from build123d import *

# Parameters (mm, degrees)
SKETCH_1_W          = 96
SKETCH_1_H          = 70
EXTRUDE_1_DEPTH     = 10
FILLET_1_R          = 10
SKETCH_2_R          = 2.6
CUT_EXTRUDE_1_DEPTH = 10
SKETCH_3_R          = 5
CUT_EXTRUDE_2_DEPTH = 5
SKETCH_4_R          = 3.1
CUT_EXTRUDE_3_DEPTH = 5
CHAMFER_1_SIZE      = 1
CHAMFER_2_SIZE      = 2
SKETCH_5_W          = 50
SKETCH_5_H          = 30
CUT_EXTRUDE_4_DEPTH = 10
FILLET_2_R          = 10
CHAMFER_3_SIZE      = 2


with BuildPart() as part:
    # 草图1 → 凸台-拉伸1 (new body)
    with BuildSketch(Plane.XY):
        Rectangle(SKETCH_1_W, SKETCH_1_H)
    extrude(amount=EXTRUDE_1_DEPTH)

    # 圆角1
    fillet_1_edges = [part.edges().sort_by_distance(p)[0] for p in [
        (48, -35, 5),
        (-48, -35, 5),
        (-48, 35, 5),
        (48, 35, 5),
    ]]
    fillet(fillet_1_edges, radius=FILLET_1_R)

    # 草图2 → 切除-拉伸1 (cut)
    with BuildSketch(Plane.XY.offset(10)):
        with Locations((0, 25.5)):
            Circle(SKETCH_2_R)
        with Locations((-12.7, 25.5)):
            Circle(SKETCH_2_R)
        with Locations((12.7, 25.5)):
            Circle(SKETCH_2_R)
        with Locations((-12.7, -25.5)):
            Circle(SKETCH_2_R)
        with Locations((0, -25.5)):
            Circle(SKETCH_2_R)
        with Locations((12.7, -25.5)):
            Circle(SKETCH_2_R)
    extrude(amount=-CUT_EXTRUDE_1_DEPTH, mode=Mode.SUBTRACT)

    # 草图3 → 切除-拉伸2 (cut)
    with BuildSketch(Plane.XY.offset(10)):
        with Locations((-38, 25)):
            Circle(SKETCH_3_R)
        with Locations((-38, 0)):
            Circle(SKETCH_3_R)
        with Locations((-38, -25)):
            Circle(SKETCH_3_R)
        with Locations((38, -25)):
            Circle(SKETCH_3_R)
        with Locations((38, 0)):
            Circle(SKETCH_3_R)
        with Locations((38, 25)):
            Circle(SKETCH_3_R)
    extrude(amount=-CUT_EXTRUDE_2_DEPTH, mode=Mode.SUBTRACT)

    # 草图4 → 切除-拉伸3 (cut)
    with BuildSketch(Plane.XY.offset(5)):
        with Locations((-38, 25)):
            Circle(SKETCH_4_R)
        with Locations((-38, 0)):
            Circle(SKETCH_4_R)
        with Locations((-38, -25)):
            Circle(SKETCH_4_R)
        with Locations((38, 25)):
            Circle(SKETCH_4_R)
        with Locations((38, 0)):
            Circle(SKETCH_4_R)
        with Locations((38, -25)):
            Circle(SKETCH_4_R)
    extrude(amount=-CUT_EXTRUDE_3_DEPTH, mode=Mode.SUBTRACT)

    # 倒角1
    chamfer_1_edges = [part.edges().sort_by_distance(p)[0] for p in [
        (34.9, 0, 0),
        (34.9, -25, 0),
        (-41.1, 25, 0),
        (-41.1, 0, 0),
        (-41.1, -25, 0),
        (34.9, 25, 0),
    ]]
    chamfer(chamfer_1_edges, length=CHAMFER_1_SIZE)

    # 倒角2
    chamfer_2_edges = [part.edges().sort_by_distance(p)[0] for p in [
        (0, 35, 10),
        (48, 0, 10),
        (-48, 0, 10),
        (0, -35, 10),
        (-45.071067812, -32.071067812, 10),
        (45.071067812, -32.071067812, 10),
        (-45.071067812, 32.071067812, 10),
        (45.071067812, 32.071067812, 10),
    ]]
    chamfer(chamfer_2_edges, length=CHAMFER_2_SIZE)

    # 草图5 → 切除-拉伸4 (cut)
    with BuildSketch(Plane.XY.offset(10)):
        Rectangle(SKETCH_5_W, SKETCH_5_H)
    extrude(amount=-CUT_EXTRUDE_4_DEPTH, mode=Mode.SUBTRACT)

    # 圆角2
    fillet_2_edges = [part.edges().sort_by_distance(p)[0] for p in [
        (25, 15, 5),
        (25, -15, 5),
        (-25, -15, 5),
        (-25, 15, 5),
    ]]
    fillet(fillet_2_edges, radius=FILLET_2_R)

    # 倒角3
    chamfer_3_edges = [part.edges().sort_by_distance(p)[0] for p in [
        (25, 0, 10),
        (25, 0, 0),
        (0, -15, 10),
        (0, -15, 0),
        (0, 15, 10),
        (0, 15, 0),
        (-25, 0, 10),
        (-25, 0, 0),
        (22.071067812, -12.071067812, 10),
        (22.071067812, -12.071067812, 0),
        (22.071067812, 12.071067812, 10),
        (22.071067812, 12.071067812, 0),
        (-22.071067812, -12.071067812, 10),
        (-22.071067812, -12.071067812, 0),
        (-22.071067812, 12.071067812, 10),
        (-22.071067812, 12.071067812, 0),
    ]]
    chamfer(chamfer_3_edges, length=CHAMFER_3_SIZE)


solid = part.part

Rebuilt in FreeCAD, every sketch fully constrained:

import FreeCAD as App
import Part
import Sketcher
from FreeCAD import Vector
Q = App.Units.Quantity


def edges_at(feature, points):
    """Names of the edges that pass closest to the given points."""
    edges = feature.Shape.Edges
    near = lambda p: min(range(len(edges)), key=lambda i: edges[i].distToShape(Part.Vertex(*p))[0])
    return sorted({f"Edge{near(p) + 1}" for p in points})

doc = App.newDocument("Part")
params = doc.addObject("Spreadsheet::Sheet", "Params")
for row, (alias, value) in enumerate([
    ("sketch1_width", "96 mm"),
    ("sketch1_height", "70 mm"),
    ("pad1_length", "10 mm"),
    ("fillet_radius", "10 mm"),
    ("sketch2_diameter", "5.2 mm"),
    ("pocket1_length", "10 mm"),
    ("sketch3_diameter", "10 mm"),
    ("pocket2_length", "5 mm"),
    ("sketch4_diameter", "6.2 mm"),
    ("pocket3_length", "5 mm"),
    ("chamfer_size", "1 mm"),
    ("chamfer2_size", "2 mm"),
    ("sketch5_width", "50 mm"),
    ("sketch5_height", "30 mm"),
    ("pocket4_length", "10 mm"),
    ("fillet2_radius", "10 mm"),
    ("chamfer3_size", "2 mm"),
], start=1):
    params.set(f"A{row}", alias)
    params.set(f"B{row}", "=" + value)
    params.setAlias(f"B{row}", alias)

body = doc.addObject("PartDesign::Body", "Body")

# Sketch on XY plane
sketch1 = body.newObject("Sketcher::SketchObject", "Sketch")
sketch1.AttachmentSupport = (doc.getObject("XY_Plane"), [""])
sketch1.MapMode = "FlatFace"
sketch1.addGeometry([
    Part.LineSegment(Vector(-48, 35, 0), Vector(-48, -35, 0)),
    Part.LineSegment(Vector(-48, -35, 0), Vector(48, -35, 0)),
    Part.LineSegment(Vector(48, -35, 0), Vector(48, 35, 0)),
    Part.LineSegment(Vector(48, 35, 0), Vector(-48, 35, 0)),
], False)
sketch1.addConstraint([
    Sketcher.Constraint("Coincident", 0, 2, 1, 1),
    Sketcher.Constraint("Coincident", 1, 2, 2, 1),
    Sketcher.Constraint("Coincident", 2, 2, 3, 1),
    Sketcher.Constraint("Coincident", 3, 2, 0, 1),
    Sketcher.Constraint("Vertical", 0),
    Sketcher.Constraint("Horizontal", 1),
    Sketcher.Constraint("Vertical", 2),
    Sketcher.Constraint("Horizontal", 3),
    Sketcher.Constraint("Symmetric", 0, 2, 2, 2, -1, 1),
    Sketcher.Constraint("DistanceX", 1, 1, 1, 2, Q("96 mm")),
    Sketcher.Constraint("DistanceY", 0, 2, 0, 1, Q("70 mm")),
])
sketch1.setExpression("Constraints[9]", "Params.sketch1_width")
sketch1.setExpression("Constraints[10]", "Params.sketch1_height")
pad1 = body.newObject("PartDesign::Pad", "Pad")
pad1.Profile = sketch1
pad1.setExpression("Length", "Params.pad1_length")
doc.recompute()

fillet = body.newObject("PartDesign::Fillet", "Fillet")
fillet.Base = (pad1, edges_at(pad1, [
    (48, -35, 5),
    (-48, -35, 5),
    (-48, 35, 5),
    (48, 35, 5),
]))
fillet.setExpression("Radius", "Params.fillet_radius")

# Sketch on XY plane
sketch2 = body.newObject("Sketcher::SketchObject", "Sketch001")
sketch2.AttachmentSupport = (doc.getObject("XY_Plane"), [""])
sketch2.MapMode = "FlatFace"
sketch2.AttachmentOffset = App.Placement(Vector(0, 0, 10), App.Rotation())
sketch2.addGeometry([
    Part.Circle(Vector(0, 25.5, 0), Vector(0, 0, 1), 2.6),  # 0
    Part.Circle(Vector(-12.7, 25.5, 0), Vector(0, 0, 1), 2.6),  # 1
    Part.Circle(Vector(12.7, 25.5, 0), Vector(0, 0, 1), 2.6),  # 2
    Part.Circle(Vector(-12.7, -25.5, 0), Vector(0, 0, 1), 2.6),  # 3
    Part.Circle(Vector(0, -25.5, 0), Vector(0, 0, 1), 2.6),  # 4
    Part.Circle(Vector(12.7, -25.5, 0), Vector(0, 0, 1), 2.6),  # 5
], False)
sketch2.addConstraint([
    Sketcher.Constraint("Equal", 0, 1),
    Sketcher.Constraint("Equal", 1, 2),
    Sketcher.Constraint("Equal", 2, 3),
    Sketcher.Constraint("Equal", 3, 4),
    Sketcher.Constraint("Equal", 4, 5),
    Sketcher.Constraint("Symmetric", 2, 3, 3, 3, -1, 1),
    Sketcher.Constraint("Symmetric", 0, 3, 4, 3, -1, 1),
    Sketcher.Constraint("Symmetric", 1, 3, 5, 3, -1, 1),
    Sketcher.Constraint("Symmetric", 1, 3, 2, 3, -2),
    Sketcher.Constraint("PointOnObject", 0, 3, -2),
    Sketcher.Constraint("Horizontal", 0, 3, 1, 3),
    Sketcher.Constraint("Diameter", 0, Q("5.2 mm")),
    Sketcher.Constraint("DistanceY", 3, 3, 1, 3, Q("51 mm")),
    Sketcher.Constraint("DistanceX", 1, 3, -1, 1, Q("12.7 mm")),
])
sketch2.setExpression("Constraints[11]", "Params.sketch2_diameter")
pocket1 = body.newObject("PartDesign::Pocket", "Pocket")
pocket1.Profile = sketch2
pocket1.setExpression("Length", "Params.pocket1_length")

# Sketch on XY plane
sketch3 = body.newObject("Sketcher::SketchObject", "Sketch002")
sketch3.AttachmentSupport = (doc.getObject("XY_Plane"), [""])
sketch3.MapMode = "FlatFace"
sketch3.AttachmentOffset = App.Placement(Vector(0, 0, 10), App.Rotation())
sketch3.addGeometry([
    Part.Circle(Vector(-38, 25, 0), Vector(0, 0, 1), 5),  # 0
    Part.Circle(Vector(-38, 0, 0), Vector(0, 0, 1), 5),  # 1
    Part.Circle(Vector(-38, -25, 0), Vector(0, 0, 1), 5),  # 2
    Part.Circle(Vector(38, -25, 0), Vector(0, 0, 1), 5),  # 3
    Part.Circle(Vector(38, 0, 0), Vector(0, 0, 1), 5),  # 4
    Part.Circle(Vector(38, 25, 0), Vector(0, 0, 1), 5),  # 5
], False)
sketch3.addConstraint([
    Sketcher.Constraint("Equal", 0, 1),
    Sketcher.Constraint("Equal", 1, 2),
    Sketcher.Constraint("Equal", 2, 3),
    Sketcher.Constraint("Equal", 3, 4),
    Sketcher.Constraint("Equal", 4, 5),
    Sketcher.Constraint("Symmetric", 0, 3, 3, 3, -1, 1),
    Sketcher.Constraint("Symmetric", 1, 3, 4, 3, -1, 1),
    Sketcher.Constraint("Symmetric", 2, 3, 5, 3, -1, 1),
    Sketcher.Constraint("Symmetric", 2, 3, 3, 3, -2),
    Sketcher.Constraint("PointOnObject", 1, 3, -1),
    Sketcher.Constraint("Vertical", 0, 3, 1, 3),
    Sketcher.Constraint("Diameter", 0, Q("10 mm")),
    Sketcher.Constraint("DistanceX", 0, 3, -1, 1, Q("38 mm")),
    Sketcher.Constraint("DistanceY", -1, 1, 0, 3, Q("25 mm")),
])
sketch3.setExpression("Constraints[11]", "Params.sketch3_diameter")
pocket2 = body.newObject("PartDesign::Pocket", "Pocket001")
pocket2.Profile = sketch3
pocket2.setExpression("Length", "Params.pocket2_length")

# Sketch on XY plane
sketch4 = body.newObject("Sketcher::SketchObject", "Sketch003")
sketch4.AttachmentSupport = (doc.getObject("XY_Plane"), [""])
sketch4.MapMode = "FlatFace"
sketch4.AttachmentOffset = App.Placement(Vector(0, 0, 5), App.Rotation())
sketch4.addGeometry([
    Part.Circle(Vector(-38, 25, 0), Vector(0, 0, 1), 3.1),  # 0
    Part.Circle(Vector(-38, 0, 0), Vector(0, 0, 1), 3.1),  # 1
    Part.Circle(Vector(-38, -25, 0), Vector(0, 0, 1), 3.1),  # 2
    Part.Circle(Vector(38, 25, 0), Vector(0, 0, 1), 3.1),  # 3
    Part.Circle(Vector(38, 0, 0), Vector(0, 0, 1), 3.1),  # 4
    Part.Circle(Vector(38, -25, 0), Vector(0, 0, 1), 3.1),  # 5
], False)
sketch4.addConstraint([
    Sketcher.Constraint("Equal", 0, 1),
    Sketcher.Constraint("Equal", 1, 2),
    Sketcher.Constraint("Equal", 2, 3),
    Sketcher.Constraint("Equal", 3, 4),
    Sketcher.Constraint("Equal", 4, 5),
    Sketcher.Constraint("Symmetric", 2, 3, 3, 3, -1, 1),
    Sketcher.Constraint("Symmetric", 1, 3, 4, 3, -1, 1),
    Sketcher.Constraint("Symmetric", 0, 3, 5, 3, -1, 1),
    Sketcher.Constraint("Symmetric", 0, 3, 3, 3, -2),
    Sketcher.Constraint("PointOnObject", 1, 3, -1),
    Sketcher.Constraint("Vertical", 0, 3, 1, 3),
    Sketcher.Constraint("Diameter", 0, Q("6.2 mm")),
    Sketcher.Constraint("DistanceX", 0, 3, -1, 1, Q("38 mm")),
    Sketcher.Constraint("DistanceY", -1, 1, 0, 3, Q("25 mm")),
])
sketch4.setExpression("Constraints[11]", "Params.sketch4_diameter")
pocket3 = body.newObject("PartDesign::Pocket", "Pocket002")
pocket3.Profile = sketch4
pocket3.setExpression("Length", "Params.pocket3_length")
doc.recompute()

chamfer = body.newObject("PartDesign::Chamfer", "Chamfer")
chamfer.Base = (pocket3, edges_at(pocket3, [
    (34.9, 0, 0),
    (34.9, -25, 0),
    (-41.1, 25, 0),
    (-41.1, 0, 0),
    (-41.1, -25, 0),
    (34.9, 25, 0),
]))
chamfer.setExpression("Size", "Params.chamfer_size")
doc.recompute()

chamfer2 = body.newObject("PartDesign::Chamfer", "Chamfer001")
chamfer2.Base = (chamfer, edges_at(chamfer, [
    (0, 35, 10),
    (48, 0, 10),
    (-48, 0, 10),
    (0, -35, 10),
    (-45.071, -32.071, 10),
    (45.071, -32.071, 10),
    (-45.071, 32.071, 10),
    (45.071, 32.071, 10),
]))
chamfer2.setExpression("Size", "Params.chamfer2_size")

# Sketch on XY plane
sketch5 = body.newObject("Sketcher::SketchObject", "Sketch004")
sketch5.AttachmentSupport = (doc.getObject("XY_Plane"), [""])
sketch5.MapMode = "FlatFace"
sketch5.AttachmentOffset = App.Placement(Vector(0, 0, 10), App.Rotation())
sketch5.addGeometry([
    Part.LineSegment(Vector(-25, 15, 0), Vector(-25, -15, 0)),
    Part.LineSegment(Vector(-25, -15, 0), Vector(25, -15, 0)),
    Part.LineSegment(Vector(25, -15, 0), Vector(25, 15, 0)),
    Part.LineSegment(Vector(25, 15, 0), Vector(-25, 15, 0)),
], False)
sketch5.addConstraint([
    Sketcher.Constraint("Coincident", 0, 2, 1, 1),
    Sketcher.Constraint("Coincident", 1, 2, 2, 1),
    Sketcher.Constraint("Coincident", 2, 2, 3, 1),
    Sketcher.Constraint("Coincident", 3, 2, 0, 1),
    Sketcher.Constraint("Vertical", 0),
    Sketcher.Constraint("Horizontal", 1),
    Sketcher.Constraint("Vertical", 2),
    Sketcher.Constraint("Horizontal", 3),
    Sketcher.Constraint("Symmetric", 0, 2, 2, 2, -1, 1),
    Sketcher.Constraint("DistanceX", 1, 1, 1, 2, Q("50 mm")),
    Sketcher.Constraint("DistanceY", 0, 2, 0, 1, Q("30 mm")),
])
sketch5.setExpression("Constraints[9]", "Params.sketch5_width")
sketch5.setExpression("Constraints[10]", "Params.sketch5_height")
pocket4 = body.newObject("PartDesign::Pocket", "Pocket003")
pocket4.Profile = sketch5
pocket4.setExpression("Length", "Params.pocket4_length")
doc.recompute()

fillet2 = body.newObject("PartDesign::Fillet", "Fillet001")
fillet2.Base = (pocket4, edges_at(pocket4, [
    (25, 15, 5),
    (25, -15, 5),
    (-25, -15, 5),
    (-25, 15, 5),
]))
fillet2.setExpression("Radius", "Params.fillet2_radius")
doc.recompute()

chamfer3 = body.newObject("PartDesign::Chamfer", "Chamfer002")
chamfer3.Base = (fillet2, edges_at(fillet2, [
    (25, 0, 10),
    (25, 0, 0),
    (0, -15, 10),
    (0, -15, 0),
    (0, 15, 10),
    (0, 15, 0),
    (-25, 0, 10),
    (-25, 0, 0),
    (22.071, -12.071, 10),
    (22.071, -12.071, 0),
    (22.071, 12.071, 10),
    (22.071, 12.071, 0),
    (-22.071, -12.071, 10),
    (-22.071, -12.071, 0),
    (-22.071, 12.071, 10),
    (-22.071, 12.071, 0),
]))
chamfer3.setExpression("Size", "Params.chamfer3_size")

doc.recompute()
